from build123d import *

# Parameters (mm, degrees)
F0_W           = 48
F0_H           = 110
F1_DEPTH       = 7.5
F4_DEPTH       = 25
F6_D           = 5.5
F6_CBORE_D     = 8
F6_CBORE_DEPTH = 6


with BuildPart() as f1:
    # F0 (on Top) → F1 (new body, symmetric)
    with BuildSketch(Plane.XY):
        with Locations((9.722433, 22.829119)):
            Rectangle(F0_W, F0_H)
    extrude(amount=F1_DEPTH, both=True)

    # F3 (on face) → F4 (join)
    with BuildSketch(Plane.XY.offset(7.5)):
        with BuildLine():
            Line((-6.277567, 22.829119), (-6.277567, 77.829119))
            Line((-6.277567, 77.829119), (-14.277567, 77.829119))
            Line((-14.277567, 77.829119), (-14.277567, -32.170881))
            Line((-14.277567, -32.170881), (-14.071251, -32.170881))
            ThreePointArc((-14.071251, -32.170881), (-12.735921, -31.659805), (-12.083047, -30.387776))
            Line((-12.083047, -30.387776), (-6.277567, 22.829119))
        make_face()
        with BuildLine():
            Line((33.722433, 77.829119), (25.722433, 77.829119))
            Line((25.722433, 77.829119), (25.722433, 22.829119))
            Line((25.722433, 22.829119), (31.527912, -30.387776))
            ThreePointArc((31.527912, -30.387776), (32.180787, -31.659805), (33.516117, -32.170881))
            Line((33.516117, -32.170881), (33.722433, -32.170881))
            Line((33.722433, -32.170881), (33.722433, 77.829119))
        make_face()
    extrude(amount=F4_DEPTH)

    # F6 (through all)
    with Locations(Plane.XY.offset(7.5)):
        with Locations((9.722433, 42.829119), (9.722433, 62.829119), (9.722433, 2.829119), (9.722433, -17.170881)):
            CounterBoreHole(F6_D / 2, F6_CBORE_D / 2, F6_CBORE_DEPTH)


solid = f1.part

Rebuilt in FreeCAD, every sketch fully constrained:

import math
import FreeCAD as App
import Part
import Sketcher

V = App.Vector
Q = App.Units.Quantity

doc = App.newDocument("Part")
body = doc.addObject("PartDesign::Body", "Body")

# Sketch on XY plane
sketch1 = body.newObject("Sketcher::SketchObject", "Sketch")
sketch1.AttachmentSupport = (doc.getObject("XY_Plane"), [""])
sketch1.MapMode = "FlatFace"
sketch1.addGeometry(Part.LineSegment(V(-14.277567, 77.829119, 0), V(-14.277567, -32.170881, 0)), False)
sketch1.addGeometry(Part.LineSegment(V(-14.277567, -32.170881, 0), V(33.722433, -32.170881, 0)), False)
sketch1.addGeometry(Part.LineSegment(V(33.722433, -32.170881, 0), V(33.722433, 77.829119, 0)), False)
sketch1.addGeometry(Part.LineSegment(V(33.722433, 77.829119, 0), V(-14.277567, 77.829119, 0)), False)
sketch1.addConstraint(Sketcher.Constraint("Coincident", 0, 2, 1, 1))
sketch1.addConstraint(Sketcher.Constraint("Coincident", 1, 2, 2, 1))
sketch1.addConstraint(Sketcher.Constraint("Coincident", 2, 2, 3, 1))
sketch1.addConstraint(Sketcher.Constraint("Coincident", 3, 2, 0, 1))
sketch1.addConstraint(Sketcher.Constraint("Vertical", 0))
sketch1.addConstraint(Sketcher.Constraint("Horizontal", 1))
sketch1.addConstraint(Sketcher.Constraint("Vertical", 2))
sketch1.addConstraint(Sketcher.Constraint("Horizontal", 3))
sketch1.addConstraint(Sketcher.Constraint("DistanceX", 1, 1, 1, 2, Q("48 mm")))
sketch1.addConstraint(Sketcher.Constraint("DistanceY", 0, 2, 0, 1, Q("110 mm")))
sketch1.addConstraint(Sketcher.Constraint("DistanceY", 0, 2, -1, 1, Q("32.170881 mm")))
sketch1.addConstraint(Sketcher.Constraint("DistanceX", 0, 2, -1, 1, Q("14.277567 mm")))
pad1 = body.newObject("PartDesign::Pad", "Pad")
pad1.Profile = sketch1
pad1.Length = 15
pad1.Midplane = True

# Sketch on XY plane
sketch2 = body.newObject("Sketcher::SketchObject", "Sketch001")
sketch2.AttachmentSupport = (doc.getObject("XY_Plane"), [""])
sketch2.MapMode = "FlatFace"
sketch2.AttachmentOffset = App.Placement(V(0, 0, 7.5), App.Rotation())
sketch2.addGeometry(Part.LineSegment(V(-6.277567, 22.829119, 0), V(-6.277567, 77.829119, 0)), False)
sketch2.addGeometry(Part.LineSegment(V(-6.277567, 77.829119, 0), V(-14.277567, 77.829119, 0)), False)
sketch2.addGeometry(Part.LineSegment(V(-14.277567, 77.829119, 0), V(-14.277567, -32.170881, 0)), False)
sketch2.addGeometry(Part.LineSegment(V(-14.277567, -32.170881, 0), V(-14.071251, -32.170881, 0)), False)
sketch2.addGeometry(Part.ArcOfCircle(Part.Circle(V(-14.07125, -30.170882, 0), V(0, 0, 1), 1.999999), math.radians(-90.000024), math.radians(-6.225794)), False)
sketch2.addGeometry(Part.LineSegment(V(-12.083047, -30.387776, 0), V(-6.277567, 22.829119, 0)), False)
sketch2.addGeometry(Part.LineSegment(V(33.722433, 77.829119, 0), V(25.722433, 77.829119, 0)), False)
sketch2.addGeometry(Part.LineSegment(V(25.722433, 77.829119, 0), V(25.722433, 22.829119, 0)), False)
sketch2.addGeometry(Part.LineSegment(V(25.722433, 22.829119, 0), V(31.527912, -30.387776, 0)), False)
sketch2.addGeometry(Part.ArcOfCircle(Part.Circle(V(33.516117, -30.17088, 0), V(0, 0, 1), 2.000001), math.radians(-173.774156), math.radians(-89.999997)), False)
sketch2.addGeometry(Part.LineSegment(V(33.516117, -32.170881, 0), V(33.722433, -32.170881, 0)), False)
sketch2.addGeometry(Part.LineSegment(V(33.722433, -32.170881, 0), V(33.722433, 77.829119, 0)), False)
sketch2.addConstraint(Sketcher.Constraint("Coincident", 0, 2, 1, 1))
sketch2.addConstraint(Sketcher.Constraint("Coincident", 1, 2, 2, 1))
sketch2.addConstraint(Sketcher.Constraint("Coincident", 2, 2, 3, 1))
sketch2.addConstraint(Sketcher.Constraint("Tangent", 3, 2, 4, 1))
sketch2.addConstraint(Sketcher.Constraint("Tangent", 4, 2, 5, 1))
sketch2.addConstraint(Sketcher.Constraint("Coincident", 5, 2, 0, 1))
sketch2.addConstraint(Sketcher.Constraint("Coincident", 6, 2, 7, 1))
sketch2.addConstraint(Sketcher.Constraint("Coincident", 7, 2, 8, 1))
sketch2.addConstraint(Sketcher.Constraint("Tangent", 8, 2, 9, 1))
sketch2.addConstraint(Sketcher.Constraint("Tangent", 9, 2, 10, 1))
sketch2.addConstraint(Sketcher.Constraint("Coincident", 10, 2, 11, 1))
sketch2.addConstraint(Sketcher.Constraint("Coincident", 11, 2, 6, 1))
sketch2.addConstraint(Sketcher.Constraint("Vertical", 0))
sketch2.addConstraint(Sketcher.Constraint("Horizontal", 1))
sketch2.addConstraint(Sketcher.Constraint("Vertical", 2))
sketch2.addConstraint(Sketcher.Constraint("Horizontal", 3))
sketch2.addConstraint(Sketcher.Constraint("Horizontal", 6))
sketch2.addConstraint(Sketcher.Constraint("Vertical", 7))
sketch2.addConstraint(Sketcher.Constraint("Horizontal", 10))
sketch2.addConstraint(Sketcher.Constraint("Vertical", 11))
sketch2.addConstraint(Sketcher.Constraint("Equal", 4, 9))
sketch2.addConstraint(Sketcher.Constraint("Horizontal", 4, 3, 9, 3))
sketch2.addConstraint(Sketcher.Constraint("Horizontal", 1, 2, 6, 2))
sketch2.addConstraint(Sketcher.Constraint("Horizontal", 5, 2, 7, 2))
sketch2.addConstraint(Sketcher.Constraint("Horizontal", 4, 2, 8, 2))
sketch2.addConstraint(Sketcher.Constraint("Equal", 1, 6))
sketch2.addConstraint(Sketcher.Constraint("Radius", 4, Q("1.999999 mm")))
sketch2.addConstraint(Sketcher.Constraint("DistanceX", 1, 2, 1, 1, Q("8 mm")))
sketch2.addConstraint(Sketcher.Constraint("DistanceY", 0, 1, 0, 2, Q("55 mm")))
sketch2.addConstraint(Sketcher.Constraint("DistanceY", 2, 2, 2, 1, Q("110 mm")))
sketch2.addConstraint(Sketcher.Constraint("DistanceX", 0, 2, 6, 2, Q("32 mm")))
sketch2.addConstraint(Sketcher.Constraint("Distance", 5, Q("53.532621 mm")))
sketch2.addConstraint(Sketcher.Constraint("DistanceX", 4, 3, -1, 1, Q("14.07125 mm")))
sketch2.addConstraint(Sketcher.Constraint("DistanceY", 9, 3, -1, 1, Q("30.17088 mm")))
pad2 = body.newObject("PartDesign::Pad", "Pad001")
pad2.Profile = sketch2
pad2.Length = 25

# Sketch on XY plane
sketch3 = body.newObject("Sketcher::SketchObject", "Sketch002")
sketch3.AttachmentSupport = (doc.getObject("XY_Plane"), [""])
sketch3.MapMode = "FlatFace"
sketch3.AttachmentOffset = App.Placement(V(0, 0, 7.5), App.Rotation())
sketch3.addGeometry(Part.Circle(V(9.722433, 42.829119, 0), V(0, 0, 1), 2.75), False)
sketch3.addGeometry(Part.Circle(V(9.722433, 62.829119, 0), V(0, 0, 1), 2.75), False)
sketch3.addGeometry(Part.Circle(V(9.722433, 2.829119, 0), V(0, 0, 1), 2.75), False)
sketch3.addGeometry(Part.Circle(V(9.722433, -17.170881, 0), V(0, 0, 1), 2.75), False)
sketch3.addConstraint(Sketcher.Constraint("Equal", 0, 1))
sketch3.addConstraint(Sketcher.Constraint("Equal", 1, 2))
sketch3.addConstraint(Sketcher.Constraint("Equal", 2, 3))
sketch3.addConstraint(Sketcher.Constraint("Vertical", 0, 3, 1, 3))
sketch3.addConstraint(Sketcher.Constraint("Vertical", 1, 3, 2, 3))
sketch3.addConstraint(Sketcher.Constraint("Vertical", 2, 3, 3, 3))
sketch3.addConstraint(Sketcher.Constraint("Diameter", 0, Q("5.5 mm")))
sketch3.addConstraint(Sketcher.Constraint("DistanceY", 0, 3, 1, 3, Q("20 mm")))
sketch3.addConstraint(Sketcher.Constraint("DistanceY", 2, 3, 0, 3, Q("40 mm")))
sketch3.addConstraint(Sketcher.Constraint("DistanceY", 3, 3, 2, 3, Q("20 mm")))
sketch3.addConstraint(Sketcher.Constraint("DistanceY", -1, 1, 0, 3, Q("42.829119 mm")))
sketch3.addConstraint(Sketcher.Constraint("DistanceX", -1, 1, 0, 3, Q("9.722433 mm")))
doc.recompute()
hole = body.newObject("PartDesign::Hole", "Hole")
hole.Profile = sketch3
hole.ThreadType = "None"
hole.Diameter = 5.5
hole.DepthType = "ThroughAll"
hole.HoleCutType = "Counterbore"
hole.HoleCutDiameter = 8
hole.HoleCutDepth = 6

doc.recompute()
